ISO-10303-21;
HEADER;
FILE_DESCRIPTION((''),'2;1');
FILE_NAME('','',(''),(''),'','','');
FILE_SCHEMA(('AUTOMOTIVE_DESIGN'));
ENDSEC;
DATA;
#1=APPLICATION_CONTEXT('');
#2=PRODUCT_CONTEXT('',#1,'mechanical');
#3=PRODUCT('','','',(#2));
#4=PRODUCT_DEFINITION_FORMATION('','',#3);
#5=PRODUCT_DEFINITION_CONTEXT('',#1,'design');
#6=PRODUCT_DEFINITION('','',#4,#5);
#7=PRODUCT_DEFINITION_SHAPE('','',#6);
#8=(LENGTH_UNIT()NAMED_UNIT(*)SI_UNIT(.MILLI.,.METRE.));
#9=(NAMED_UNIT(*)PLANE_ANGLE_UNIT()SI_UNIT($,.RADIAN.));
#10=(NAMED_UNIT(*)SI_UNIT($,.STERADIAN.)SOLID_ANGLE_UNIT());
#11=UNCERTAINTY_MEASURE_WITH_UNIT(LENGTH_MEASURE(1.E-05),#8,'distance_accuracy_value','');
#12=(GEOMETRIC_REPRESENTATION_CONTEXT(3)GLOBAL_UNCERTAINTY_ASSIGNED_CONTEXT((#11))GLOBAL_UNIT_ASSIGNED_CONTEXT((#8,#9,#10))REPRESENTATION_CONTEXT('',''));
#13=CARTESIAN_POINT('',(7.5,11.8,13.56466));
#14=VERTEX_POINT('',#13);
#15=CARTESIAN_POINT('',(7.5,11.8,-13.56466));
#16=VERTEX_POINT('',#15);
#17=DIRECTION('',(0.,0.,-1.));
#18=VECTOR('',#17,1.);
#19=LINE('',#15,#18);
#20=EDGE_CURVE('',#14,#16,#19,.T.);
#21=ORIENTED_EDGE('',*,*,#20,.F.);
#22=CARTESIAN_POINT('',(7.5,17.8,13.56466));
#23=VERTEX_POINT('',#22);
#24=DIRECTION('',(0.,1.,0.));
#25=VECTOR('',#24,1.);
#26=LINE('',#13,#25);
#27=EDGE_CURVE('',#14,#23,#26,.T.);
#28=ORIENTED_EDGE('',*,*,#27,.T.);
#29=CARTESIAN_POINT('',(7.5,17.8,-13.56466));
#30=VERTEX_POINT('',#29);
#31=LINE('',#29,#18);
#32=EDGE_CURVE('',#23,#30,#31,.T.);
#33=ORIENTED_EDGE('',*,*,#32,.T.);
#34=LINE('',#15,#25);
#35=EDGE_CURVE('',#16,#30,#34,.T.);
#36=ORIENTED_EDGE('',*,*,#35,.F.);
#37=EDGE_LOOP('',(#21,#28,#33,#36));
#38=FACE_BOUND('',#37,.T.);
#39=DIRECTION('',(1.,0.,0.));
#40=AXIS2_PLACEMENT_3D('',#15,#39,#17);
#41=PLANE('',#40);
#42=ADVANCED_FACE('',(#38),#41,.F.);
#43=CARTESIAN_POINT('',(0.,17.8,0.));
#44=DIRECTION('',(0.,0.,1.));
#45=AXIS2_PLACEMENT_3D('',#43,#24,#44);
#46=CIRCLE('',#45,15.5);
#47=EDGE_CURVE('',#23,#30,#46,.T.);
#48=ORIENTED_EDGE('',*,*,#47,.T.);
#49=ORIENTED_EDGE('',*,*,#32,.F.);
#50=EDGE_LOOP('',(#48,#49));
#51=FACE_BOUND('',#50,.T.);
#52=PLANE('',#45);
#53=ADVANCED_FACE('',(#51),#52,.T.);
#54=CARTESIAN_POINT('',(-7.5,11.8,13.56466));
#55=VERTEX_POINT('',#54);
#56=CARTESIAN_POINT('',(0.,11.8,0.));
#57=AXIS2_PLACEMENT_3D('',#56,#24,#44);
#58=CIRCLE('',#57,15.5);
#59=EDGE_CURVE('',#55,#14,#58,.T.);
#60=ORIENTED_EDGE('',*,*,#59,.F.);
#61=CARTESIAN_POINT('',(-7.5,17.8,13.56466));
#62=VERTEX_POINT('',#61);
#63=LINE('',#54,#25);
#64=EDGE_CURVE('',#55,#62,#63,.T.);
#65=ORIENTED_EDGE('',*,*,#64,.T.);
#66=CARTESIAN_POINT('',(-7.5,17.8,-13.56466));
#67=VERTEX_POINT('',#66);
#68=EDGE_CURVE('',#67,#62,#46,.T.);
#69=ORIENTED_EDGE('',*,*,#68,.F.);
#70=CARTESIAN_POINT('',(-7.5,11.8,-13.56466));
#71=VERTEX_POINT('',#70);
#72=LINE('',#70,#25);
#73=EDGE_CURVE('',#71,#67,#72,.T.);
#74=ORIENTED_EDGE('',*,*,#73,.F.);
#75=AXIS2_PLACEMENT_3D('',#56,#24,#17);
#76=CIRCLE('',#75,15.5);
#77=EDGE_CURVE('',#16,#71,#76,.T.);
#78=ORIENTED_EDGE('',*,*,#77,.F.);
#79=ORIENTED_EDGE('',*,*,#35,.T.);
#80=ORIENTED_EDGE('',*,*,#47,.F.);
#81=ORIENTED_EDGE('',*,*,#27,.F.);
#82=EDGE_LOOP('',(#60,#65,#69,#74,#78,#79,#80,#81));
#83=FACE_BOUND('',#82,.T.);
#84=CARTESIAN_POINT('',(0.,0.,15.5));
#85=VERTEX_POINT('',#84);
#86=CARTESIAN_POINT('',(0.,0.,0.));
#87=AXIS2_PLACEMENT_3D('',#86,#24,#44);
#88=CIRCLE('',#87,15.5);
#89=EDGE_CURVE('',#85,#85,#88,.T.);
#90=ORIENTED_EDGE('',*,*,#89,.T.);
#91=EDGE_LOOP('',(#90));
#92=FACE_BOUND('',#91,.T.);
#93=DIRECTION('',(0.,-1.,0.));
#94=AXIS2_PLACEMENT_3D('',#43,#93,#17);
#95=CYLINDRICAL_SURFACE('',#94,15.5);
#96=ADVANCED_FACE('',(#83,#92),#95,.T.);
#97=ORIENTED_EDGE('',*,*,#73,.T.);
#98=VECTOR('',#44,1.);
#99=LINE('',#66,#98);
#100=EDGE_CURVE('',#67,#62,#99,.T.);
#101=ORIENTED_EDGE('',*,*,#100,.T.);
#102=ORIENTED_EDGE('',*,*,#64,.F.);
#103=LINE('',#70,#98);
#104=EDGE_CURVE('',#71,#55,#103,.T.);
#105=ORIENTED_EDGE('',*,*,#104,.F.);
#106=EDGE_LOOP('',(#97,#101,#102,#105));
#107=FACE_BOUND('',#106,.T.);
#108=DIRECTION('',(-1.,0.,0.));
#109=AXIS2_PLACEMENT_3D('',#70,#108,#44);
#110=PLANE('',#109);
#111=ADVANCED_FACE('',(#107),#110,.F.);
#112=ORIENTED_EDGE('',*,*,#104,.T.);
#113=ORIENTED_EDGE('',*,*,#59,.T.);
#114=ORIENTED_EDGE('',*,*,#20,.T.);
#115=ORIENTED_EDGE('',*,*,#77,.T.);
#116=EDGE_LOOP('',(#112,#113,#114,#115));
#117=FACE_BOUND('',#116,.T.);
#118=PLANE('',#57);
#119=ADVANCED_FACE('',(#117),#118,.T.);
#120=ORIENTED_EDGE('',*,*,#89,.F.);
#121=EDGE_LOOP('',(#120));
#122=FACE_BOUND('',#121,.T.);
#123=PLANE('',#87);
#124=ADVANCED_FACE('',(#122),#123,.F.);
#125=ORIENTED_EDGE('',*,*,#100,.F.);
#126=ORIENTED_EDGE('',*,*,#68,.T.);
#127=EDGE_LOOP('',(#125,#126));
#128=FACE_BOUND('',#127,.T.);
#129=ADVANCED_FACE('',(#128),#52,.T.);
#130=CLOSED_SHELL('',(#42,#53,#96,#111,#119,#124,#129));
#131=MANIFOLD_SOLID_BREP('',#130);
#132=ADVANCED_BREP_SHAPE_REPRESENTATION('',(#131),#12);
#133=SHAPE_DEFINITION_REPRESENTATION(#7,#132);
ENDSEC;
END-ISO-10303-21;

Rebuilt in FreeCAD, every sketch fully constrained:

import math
import FreeCAD as App
import Part
import Sketcher
from FreeCAD import Vector

doc = App.newDocument("Part")
body = doc.addObject("PartDesign::Body", "Body")

sketch1 = body.newObject("Sketcher::SketchObject", "Sketch")
sketch1.AttachmentSupport = (doc.getObject("XZ_Plane"), [""])
sketch1.MapMode = "FlatFace"
sketch1.addGeometry(Part.Circle(Vector(0, 0, 0), Vector(0, 0, 1), 16), False)
sketch1.addConstraint(Sketcher.Constraint("Coincident", 0, 3, -1, 1))
sketch1.addConstraint(Sketcher.Constraint("Diameter", 0, 31.0))
pad1 = body.newObject("PartDesign::Pad", "Pad")
pad1.Profile = sketch1
pad1.Length = 17.8
pad1.Reversed = True

sketch2 = body.newObject("Sketcher::SketchObject", "Sketch001")
sketch2.AttachmentSupport = (doc.getObject("XZ_Plane"), [""])
sketch2.MapMode = "FlatFace"
sketch2.AttachmentOffset = App.Placement(Vector(0, 0, -11.8), App.Rotation())
sketch2.addGeometry(Part.LineSegment(Vector(-8, -14, 0), Vector(-8, 14, 0)), False)
sketch2.addGeometry(Part.ArcOfCircle(Part.Circle(Vector(0, 0, 0), Vector(0, 0, 1), 15), math.radians(61), math.radians(119)), False)
sketch2.addGeometry(Part.LineSegment(Vector(8, 14, 0), Vector(8, -14, 0)), False)
sketch2.addGeometry(Part.ArcOfCircle(Part.Circle(Vector(0, 0, 0), Vector(0, 0, 1), 15), math.radians(-119), math.radians(-61)), False)
sketch2.addConstraint(Sketcher.Constraint("Coincident", 0, 2, 1, 2))
sketch2.addConstraint(Sketcher.Constraint("Coincident", 1, 1, 2, 1))
sketch2.addConstraint(Sketcher.Constraint("Coincident", 2, 2, 3, 2))
sketch2.addConstraint(Sketcher.Constraint("Coincident", 3, 1, 0, 1))
sketch2.addConstraint(Sketcher.Constraint("Vertical", 0))
sketch2.addConstraint(Sketcher.Constraint("Vertical", 2))
sketch2.addConstraint(Sketcher.Constraint("Coincident", 1, 3, -1, 1))
sketch2.addConstraint(Sketcher.Constraint("Coincident", 3, 3, -1, 1))
sketch2.addConstraint(Sketcher.Constraint("Equal", 1, 3))
sketch2.addConstraint(Sketcher.Constraint("Horizontal", 0, 2, 1, 1))
sketch2.addConstraint(Sketcher.Constraint("Radius", 1, 15.5))
sketch2.addConstraint(Sketcher.Constraint("DistanceX", 0, 2, 1, 1, 15.0))
pocket1 = body.newObject("PartDesign::Pocket", "Pocket")
pocket1.Profile = sketch2
pocket1.Length = 6

doc.recompute()
